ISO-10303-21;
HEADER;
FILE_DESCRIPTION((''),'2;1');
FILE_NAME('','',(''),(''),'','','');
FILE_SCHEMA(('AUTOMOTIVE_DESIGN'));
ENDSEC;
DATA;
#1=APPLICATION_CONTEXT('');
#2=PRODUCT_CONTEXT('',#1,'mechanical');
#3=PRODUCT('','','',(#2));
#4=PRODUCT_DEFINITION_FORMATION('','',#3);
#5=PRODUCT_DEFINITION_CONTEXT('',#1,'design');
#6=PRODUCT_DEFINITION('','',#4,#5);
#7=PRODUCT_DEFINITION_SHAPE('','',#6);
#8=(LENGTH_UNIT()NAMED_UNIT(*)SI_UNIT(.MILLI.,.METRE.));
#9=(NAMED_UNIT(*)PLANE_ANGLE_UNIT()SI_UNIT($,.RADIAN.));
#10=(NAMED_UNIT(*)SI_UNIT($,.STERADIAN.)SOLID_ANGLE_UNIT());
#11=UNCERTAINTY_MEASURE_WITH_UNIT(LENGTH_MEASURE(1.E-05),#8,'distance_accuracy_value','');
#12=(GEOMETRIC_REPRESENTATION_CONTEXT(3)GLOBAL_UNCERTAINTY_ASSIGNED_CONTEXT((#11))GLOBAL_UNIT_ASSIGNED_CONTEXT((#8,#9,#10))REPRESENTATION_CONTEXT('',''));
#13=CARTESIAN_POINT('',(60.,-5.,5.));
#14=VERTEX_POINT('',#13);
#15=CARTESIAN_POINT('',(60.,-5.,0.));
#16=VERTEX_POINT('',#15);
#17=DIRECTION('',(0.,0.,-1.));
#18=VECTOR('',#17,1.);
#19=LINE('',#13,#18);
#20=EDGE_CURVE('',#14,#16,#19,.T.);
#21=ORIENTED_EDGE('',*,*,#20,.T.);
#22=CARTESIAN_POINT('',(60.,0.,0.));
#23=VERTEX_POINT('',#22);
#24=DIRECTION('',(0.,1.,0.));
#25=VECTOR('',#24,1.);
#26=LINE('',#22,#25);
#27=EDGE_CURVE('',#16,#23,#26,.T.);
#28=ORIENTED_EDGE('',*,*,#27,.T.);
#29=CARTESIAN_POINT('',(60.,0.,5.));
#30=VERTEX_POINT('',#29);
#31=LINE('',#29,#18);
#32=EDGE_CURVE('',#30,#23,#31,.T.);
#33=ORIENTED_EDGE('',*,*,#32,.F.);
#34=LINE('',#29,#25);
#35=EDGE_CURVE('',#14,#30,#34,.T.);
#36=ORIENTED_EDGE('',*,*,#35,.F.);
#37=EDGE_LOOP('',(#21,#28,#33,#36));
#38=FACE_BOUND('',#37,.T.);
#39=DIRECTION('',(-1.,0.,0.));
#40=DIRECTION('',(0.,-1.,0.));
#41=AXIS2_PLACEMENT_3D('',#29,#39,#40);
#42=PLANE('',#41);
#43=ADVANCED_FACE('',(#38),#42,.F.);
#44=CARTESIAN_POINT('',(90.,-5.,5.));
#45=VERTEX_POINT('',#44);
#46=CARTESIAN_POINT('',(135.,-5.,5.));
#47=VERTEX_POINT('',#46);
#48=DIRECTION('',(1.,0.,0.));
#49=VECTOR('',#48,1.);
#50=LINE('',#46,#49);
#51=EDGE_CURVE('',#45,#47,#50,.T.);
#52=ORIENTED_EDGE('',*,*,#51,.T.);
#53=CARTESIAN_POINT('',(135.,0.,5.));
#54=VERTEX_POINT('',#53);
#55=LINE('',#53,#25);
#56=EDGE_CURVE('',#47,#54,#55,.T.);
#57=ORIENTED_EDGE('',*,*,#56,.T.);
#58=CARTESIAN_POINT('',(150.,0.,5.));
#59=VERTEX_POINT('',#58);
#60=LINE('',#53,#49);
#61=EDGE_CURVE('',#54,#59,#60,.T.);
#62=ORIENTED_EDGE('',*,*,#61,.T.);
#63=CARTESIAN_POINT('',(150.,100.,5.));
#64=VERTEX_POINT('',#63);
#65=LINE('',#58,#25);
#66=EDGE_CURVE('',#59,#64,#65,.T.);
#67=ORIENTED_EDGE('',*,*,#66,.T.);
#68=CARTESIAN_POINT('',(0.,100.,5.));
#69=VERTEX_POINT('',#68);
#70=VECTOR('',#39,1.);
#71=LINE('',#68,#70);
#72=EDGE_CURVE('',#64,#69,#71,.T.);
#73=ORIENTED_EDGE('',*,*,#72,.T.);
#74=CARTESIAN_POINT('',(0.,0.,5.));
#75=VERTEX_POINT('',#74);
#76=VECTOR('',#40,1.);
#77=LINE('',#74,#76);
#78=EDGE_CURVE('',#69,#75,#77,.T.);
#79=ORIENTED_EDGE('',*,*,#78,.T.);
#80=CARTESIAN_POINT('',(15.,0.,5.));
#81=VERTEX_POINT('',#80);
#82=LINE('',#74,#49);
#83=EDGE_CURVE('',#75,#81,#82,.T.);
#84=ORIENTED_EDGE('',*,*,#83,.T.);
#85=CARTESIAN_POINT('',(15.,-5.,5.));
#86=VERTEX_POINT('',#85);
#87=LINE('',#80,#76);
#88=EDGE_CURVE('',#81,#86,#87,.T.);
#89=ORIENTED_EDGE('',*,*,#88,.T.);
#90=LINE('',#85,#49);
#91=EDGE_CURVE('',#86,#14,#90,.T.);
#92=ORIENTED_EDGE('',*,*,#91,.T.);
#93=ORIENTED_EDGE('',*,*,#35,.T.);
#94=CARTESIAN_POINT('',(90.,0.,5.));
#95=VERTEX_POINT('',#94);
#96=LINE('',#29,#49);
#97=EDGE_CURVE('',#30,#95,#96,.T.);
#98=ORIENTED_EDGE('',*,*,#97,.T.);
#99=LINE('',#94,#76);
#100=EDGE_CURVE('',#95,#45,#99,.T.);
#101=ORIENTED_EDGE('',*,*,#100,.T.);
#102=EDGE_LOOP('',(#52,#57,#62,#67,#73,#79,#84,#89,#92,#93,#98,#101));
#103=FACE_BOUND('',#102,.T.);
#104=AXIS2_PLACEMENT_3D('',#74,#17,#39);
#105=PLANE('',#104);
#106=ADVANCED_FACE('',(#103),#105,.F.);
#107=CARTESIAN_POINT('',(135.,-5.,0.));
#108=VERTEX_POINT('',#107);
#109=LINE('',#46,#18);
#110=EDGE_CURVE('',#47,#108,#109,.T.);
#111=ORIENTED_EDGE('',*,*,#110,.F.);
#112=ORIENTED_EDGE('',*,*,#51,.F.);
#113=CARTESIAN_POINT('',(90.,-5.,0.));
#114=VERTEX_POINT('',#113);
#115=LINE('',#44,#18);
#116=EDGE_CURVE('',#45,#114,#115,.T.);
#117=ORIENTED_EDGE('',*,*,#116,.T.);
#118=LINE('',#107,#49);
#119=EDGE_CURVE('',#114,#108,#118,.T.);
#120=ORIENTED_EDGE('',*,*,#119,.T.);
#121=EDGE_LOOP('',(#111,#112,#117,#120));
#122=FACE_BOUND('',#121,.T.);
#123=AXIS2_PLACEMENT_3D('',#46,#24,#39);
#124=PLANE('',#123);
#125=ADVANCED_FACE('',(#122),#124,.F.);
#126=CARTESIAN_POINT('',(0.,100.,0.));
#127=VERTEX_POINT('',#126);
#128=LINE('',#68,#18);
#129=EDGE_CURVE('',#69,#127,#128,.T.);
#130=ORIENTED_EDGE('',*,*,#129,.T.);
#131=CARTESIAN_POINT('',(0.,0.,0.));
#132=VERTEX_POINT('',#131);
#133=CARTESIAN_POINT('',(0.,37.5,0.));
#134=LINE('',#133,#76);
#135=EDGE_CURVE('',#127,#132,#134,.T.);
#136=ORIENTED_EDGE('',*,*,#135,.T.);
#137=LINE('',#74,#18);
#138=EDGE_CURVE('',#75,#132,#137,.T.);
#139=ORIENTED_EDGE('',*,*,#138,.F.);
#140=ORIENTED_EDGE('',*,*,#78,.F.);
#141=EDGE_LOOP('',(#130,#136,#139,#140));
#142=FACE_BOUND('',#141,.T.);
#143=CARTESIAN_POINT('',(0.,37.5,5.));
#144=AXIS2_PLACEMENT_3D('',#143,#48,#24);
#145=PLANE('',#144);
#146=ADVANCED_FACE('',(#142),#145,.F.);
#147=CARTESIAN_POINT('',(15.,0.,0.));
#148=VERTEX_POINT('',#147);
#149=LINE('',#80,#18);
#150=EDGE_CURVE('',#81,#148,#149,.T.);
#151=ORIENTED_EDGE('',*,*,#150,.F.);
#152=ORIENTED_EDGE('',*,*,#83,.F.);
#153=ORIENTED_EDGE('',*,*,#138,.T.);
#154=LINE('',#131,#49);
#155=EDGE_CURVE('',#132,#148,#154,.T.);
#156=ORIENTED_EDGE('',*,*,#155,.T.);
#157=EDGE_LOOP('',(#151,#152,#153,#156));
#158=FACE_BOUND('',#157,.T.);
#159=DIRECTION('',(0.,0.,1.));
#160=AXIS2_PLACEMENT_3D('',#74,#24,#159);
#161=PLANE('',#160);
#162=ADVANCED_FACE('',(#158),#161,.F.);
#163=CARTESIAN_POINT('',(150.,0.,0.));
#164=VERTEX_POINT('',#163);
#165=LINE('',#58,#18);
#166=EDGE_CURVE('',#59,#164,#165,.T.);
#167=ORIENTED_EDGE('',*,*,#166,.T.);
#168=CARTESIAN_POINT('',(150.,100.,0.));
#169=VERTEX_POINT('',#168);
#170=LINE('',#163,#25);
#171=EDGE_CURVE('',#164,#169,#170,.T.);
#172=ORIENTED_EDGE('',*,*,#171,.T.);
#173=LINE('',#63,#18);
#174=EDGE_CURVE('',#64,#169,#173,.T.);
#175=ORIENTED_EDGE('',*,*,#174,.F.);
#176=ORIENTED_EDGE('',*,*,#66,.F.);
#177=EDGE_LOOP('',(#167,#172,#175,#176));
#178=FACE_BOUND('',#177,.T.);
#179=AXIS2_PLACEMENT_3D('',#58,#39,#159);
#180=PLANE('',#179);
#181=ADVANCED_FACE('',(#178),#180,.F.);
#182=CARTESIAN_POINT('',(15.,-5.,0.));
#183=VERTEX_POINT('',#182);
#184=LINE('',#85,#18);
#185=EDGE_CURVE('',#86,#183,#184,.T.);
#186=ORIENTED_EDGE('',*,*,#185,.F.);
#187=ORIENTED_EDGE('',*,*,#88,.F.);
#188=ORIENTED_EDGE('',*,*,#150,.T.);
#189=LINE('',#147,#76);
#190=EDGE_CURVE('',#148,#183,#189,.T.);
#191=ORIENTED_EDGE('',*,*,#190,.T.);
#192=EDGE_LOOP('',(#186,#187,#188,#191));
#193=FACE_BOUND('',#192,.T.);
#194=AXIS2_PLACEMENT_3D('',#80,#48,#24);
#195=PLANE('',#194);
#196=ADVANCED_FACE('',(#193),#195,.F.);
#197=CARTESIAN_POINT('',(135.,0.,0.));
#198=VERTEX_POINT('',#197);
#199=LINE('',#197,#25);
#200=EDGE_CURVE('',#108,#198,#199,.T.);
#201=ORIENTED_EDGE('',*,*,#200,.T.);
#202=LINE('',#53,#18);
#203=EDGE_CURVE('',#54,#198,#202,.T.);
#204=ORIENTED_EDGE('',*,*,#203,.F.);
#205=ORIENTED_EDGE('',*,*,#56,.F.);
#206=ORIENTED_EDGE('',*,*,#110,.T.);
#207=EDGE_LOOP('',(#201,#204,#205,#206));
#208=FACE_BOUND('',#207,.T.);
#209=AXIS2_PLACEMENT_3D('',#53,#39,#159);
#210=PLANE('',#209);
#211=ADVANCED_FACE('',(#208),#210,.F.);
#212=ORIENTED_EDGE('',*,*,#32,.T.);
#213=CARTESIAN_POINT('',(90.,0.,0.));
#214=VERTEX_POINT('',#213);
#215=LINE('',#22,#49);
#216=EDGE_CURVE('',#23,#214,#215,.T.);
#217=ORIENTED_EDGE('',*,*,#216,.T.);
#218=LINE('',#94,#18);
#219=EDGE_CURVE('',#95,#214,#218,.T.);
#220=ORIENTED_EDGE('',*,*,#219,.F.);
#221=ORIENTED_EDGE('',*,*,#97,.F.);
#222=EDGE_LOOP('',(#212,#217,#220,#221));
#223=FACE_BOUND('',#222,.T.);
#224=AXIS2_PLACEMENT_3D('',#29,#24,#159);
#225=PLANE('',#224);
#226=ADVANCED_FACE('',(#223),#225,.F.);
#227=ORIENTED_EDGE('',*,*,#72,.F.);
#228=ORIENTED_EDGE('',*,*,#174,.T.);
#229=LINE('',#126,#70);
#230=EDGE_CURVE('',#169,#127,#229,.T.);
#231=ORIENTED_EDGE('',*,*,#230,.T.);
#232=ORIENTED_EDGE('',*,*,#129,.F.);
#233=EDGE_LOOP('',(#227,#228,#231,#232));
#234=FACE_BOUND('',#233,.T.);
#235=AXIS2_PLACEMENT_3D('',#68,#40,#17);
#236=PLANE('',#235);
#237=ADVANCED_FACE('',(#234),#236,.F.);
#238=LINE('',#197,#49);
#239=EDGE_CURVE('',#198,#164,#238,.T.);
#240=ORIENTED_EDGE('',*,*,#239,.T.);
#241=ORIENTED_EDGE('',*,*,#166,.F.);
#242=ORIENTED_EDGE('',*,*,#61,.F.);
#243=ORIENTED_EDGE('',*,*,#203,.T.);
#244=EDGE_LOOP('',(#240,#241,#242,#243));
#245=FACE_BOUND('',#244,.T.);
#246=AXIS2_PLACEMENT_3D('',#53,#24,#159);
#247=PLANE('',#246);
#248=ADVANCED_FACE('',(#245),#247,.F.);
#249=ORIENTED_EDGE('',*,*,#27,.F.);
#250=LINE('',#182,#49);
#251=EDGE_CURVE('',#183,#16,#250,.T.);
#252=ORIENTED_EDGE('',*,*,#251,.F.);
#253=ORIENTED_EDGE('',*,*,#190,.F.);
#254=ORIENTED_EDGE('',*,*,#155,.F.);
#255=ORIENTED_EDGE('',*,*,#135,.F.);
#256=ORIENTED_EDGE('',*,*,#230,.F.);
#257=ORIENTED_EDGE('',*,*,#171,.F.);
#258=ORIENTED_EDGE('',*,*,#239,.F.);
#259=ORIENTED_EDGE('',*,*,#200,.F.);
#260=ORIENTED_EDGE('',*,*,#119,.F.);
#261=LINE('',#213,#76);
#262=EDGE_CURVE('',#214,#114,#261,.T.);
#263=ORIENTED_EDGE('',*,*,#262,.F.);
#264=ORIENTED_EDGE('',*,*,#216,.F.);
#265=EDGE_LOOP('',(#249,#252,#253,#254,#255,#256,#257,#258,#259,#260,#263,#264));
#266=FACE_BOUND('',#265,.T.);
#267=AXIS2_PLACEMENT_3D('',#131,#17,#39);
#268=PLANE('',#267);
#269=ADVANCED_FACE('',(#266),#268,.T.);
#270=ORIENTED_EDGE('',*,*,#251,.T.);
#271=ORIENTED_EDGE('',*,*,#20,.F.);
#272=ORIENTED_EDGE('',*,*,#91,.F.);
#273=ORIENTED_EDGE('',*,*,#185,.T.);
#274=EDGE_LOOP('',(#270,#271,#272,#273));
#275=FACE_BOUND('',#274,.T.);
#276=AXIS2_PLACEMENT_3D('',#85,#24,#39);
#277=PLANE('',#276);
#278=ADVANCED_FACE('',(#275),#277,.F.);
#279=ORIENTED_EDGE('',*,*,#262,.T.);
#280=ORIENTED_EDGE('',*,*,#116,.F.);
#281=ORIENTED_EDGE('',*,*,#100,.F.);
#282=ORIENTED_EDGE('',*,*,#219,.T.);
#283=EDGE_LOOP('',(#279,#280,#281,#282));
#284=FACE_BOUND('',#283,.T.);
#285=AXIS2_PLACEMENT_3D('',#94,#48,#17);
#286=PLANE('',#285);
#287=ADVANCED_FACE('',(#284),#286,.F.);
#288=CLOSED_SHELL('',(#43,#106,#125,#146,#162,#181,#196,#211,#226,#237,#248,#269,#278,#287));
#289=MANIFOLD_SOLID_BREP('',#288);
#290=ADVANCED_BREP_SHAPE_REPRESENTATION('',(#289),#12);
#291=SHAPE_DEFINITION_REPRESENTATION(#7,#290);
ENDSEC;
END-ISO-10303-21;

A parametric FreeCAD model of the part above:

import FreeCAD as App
import Part
import Sketcher
from FreeCAD import Vector

doc = App.newDocument("Part")
params = doc.addObject("Spreadsheet::Sheet", "Params")
for row, (alias, value) in enumerate([
    ("sketch1_width", "15 mm"),
    ("sketch1_width2", "45 mm"),
    ("sketch1_width3", "30 mm"),
    ("sketch1_height", "5 mm"),
    ("sketch1_height2", "100 mm"),
    ("pad1_length", "5 mm"),
], start=1):
    params.set(f"A{row}", alias)
    params.set(f"B{row}", "=" + value)
    params.setAlias(f"B{row}", alias)

body = doc.addObject("PartDesign::Body", "Body")

# Sketch on XY plane
sketch1 = body.newObject("Sketcher::SketchObject", "Sketch")
sketch1.AttachmentSupport = (doc.getObject("XY_Plane"), [""])
sketch1.MapMode = "FlatFace"
sketch1.addGeometry([
    Part.LineSegment(Vector(0, 0, 0), Vector(15, 0, 0)),  # 0
    Part.LineSegment(Vector(15, 0, 0), Vector(15, -5, 0)),  # 1
    Part.LineSegment(Vector(15, -5, 0), Vector(60, -5, 0)),  # 2
    Part.LineSegment(Vector(60, -5, 0), Vector(60, 0, 0)),  # 3
    Part.LineSegment(Vector(60, 0, 0), Vector(90, 0, 0)),  # 4
    Part.LineSegment(Vector(90, 0, 0), Vector(90, -5, 0)),  # 5
    Part.LineSegment(Vector(90, -5, 0), Vector(135, -5, 0)),  # 6
    Part.LineSegment(Vector(135, -5, 0), Vector(135, 0, 0)),  # 7
    Part.LineSegment(Vector(135, 0, 0), Vector(150, 0, 0)),  # 8
    Part.LineSegment(Vector(150, 0, 0), Vector(150, 100, 0)),  # 9
    Part.LineSegment(Vector(150, 100, 0), Vector(0, 100, 0)),  # 10
    Part.LineSegment(Vector(0, 100, 0), Vector(0, 0, 0)),  # 11
], False)
sketch1.addConstraint([
    Sketcher.Constraint("Coincident", 0, 2, 1, 1),
    Sketcher.Constraint("Coincident", 1, 2, 2, 1),
    Sketcher.Constraint("Coincident", 2, 2, 3, 1),
    Sketcher.Constraint("Coincident", 3, 2, 4, 1),
    Sketcher.Constraint("Coincident", 4, 2, 5, 1),
    Sketcher.Constraint("Coincident", 5, 2, 6, 1),
    Sketcher.Constraint("Coincident", 6, 2, 7, 1),
    Sketcher.Constraint("Coincident", 7, 2, 8, 1),
    Sketcher.Constraint("Coincident", 8, 2, 9, 1),
    Sketcher.Constraint("Coincident", 9, 2, 10, 1),
    Sketcher.Constraint("Coincident", 10, 2, 11, 1),
    Sketcher.Constraint("Coincident", 11, 2, 0, 1),
    Sketcher.Constraint("Horizontal", 0),
    Sketcher.Constraint("Vertical", 1),
    Sketcher.Constraint("Horizontal", 2),
    Sketcher.Constraint("Vertical", 3),
    Sketcher.Constraint("Horizontal", 4),
    Sketcher.Constraint("Vertical", 5),
    Sketcher.Constraint("Horizontal", 6),
    Sketcher.Constraint("Vertical", 7),
    Sketcher.Constraint("Horizontal", 8),
    Sketcher.Constraint("Vertical", 9),
    Sketcher.Constraint("Horizontal", 10),
    Sketcher.Constraint("Vertical", 11),
    Sketcher.Constraint("Coincident", 11, 2, -1, 1),
    Sketcher.Constraint("PointOnObject", 3, 2, -1),
    Sketcher.Constraint("PointOnObject", 7, 2, -1),
    Sketcher.Constraint("Horizontal", 2, 2, 5, 2),
    Sketcher.Constraint("Equal", 2, 6),
    Sketcher.Constraint("Equal", 0, 8),
    Sketcher.Constraint("DistanceX", 0, 1, 0, 2, 15.0),
    Sketcher.Constraint("DistanceX", 2, 1, 2, 2, 45.0),
    Sketcher.Constraint("DistanceX", 4, 1, 4, 2, 30.0),
    Sketcher.Constraint("DistanceY", 1, 2, 1, 1, 5.0),
    Sketcher.Constraint("DistanceY", 9, 1, 9, 2, 100.0),
])
sketch1.setExpression("Constraints[30]", "Params.sketch1_width")
sketch1.setExpression("Constraints[31]", "Params.sketch1_width2")
sketch1.setExpression("Constraints[32]", "Params.sketch1_width3")
sketch1.setExpression("Constraints[33]", "Params.sketch1_height")
sketch1.setExpression("Constraints[34]", "Params.sketch1_height2")
pad1 = body.newObject("PartDesign::Pad", "Pad")
pad1.Profile = sketch1
pad1.setExpression("Length", "Params.pad1_length")

doc.recompute()
